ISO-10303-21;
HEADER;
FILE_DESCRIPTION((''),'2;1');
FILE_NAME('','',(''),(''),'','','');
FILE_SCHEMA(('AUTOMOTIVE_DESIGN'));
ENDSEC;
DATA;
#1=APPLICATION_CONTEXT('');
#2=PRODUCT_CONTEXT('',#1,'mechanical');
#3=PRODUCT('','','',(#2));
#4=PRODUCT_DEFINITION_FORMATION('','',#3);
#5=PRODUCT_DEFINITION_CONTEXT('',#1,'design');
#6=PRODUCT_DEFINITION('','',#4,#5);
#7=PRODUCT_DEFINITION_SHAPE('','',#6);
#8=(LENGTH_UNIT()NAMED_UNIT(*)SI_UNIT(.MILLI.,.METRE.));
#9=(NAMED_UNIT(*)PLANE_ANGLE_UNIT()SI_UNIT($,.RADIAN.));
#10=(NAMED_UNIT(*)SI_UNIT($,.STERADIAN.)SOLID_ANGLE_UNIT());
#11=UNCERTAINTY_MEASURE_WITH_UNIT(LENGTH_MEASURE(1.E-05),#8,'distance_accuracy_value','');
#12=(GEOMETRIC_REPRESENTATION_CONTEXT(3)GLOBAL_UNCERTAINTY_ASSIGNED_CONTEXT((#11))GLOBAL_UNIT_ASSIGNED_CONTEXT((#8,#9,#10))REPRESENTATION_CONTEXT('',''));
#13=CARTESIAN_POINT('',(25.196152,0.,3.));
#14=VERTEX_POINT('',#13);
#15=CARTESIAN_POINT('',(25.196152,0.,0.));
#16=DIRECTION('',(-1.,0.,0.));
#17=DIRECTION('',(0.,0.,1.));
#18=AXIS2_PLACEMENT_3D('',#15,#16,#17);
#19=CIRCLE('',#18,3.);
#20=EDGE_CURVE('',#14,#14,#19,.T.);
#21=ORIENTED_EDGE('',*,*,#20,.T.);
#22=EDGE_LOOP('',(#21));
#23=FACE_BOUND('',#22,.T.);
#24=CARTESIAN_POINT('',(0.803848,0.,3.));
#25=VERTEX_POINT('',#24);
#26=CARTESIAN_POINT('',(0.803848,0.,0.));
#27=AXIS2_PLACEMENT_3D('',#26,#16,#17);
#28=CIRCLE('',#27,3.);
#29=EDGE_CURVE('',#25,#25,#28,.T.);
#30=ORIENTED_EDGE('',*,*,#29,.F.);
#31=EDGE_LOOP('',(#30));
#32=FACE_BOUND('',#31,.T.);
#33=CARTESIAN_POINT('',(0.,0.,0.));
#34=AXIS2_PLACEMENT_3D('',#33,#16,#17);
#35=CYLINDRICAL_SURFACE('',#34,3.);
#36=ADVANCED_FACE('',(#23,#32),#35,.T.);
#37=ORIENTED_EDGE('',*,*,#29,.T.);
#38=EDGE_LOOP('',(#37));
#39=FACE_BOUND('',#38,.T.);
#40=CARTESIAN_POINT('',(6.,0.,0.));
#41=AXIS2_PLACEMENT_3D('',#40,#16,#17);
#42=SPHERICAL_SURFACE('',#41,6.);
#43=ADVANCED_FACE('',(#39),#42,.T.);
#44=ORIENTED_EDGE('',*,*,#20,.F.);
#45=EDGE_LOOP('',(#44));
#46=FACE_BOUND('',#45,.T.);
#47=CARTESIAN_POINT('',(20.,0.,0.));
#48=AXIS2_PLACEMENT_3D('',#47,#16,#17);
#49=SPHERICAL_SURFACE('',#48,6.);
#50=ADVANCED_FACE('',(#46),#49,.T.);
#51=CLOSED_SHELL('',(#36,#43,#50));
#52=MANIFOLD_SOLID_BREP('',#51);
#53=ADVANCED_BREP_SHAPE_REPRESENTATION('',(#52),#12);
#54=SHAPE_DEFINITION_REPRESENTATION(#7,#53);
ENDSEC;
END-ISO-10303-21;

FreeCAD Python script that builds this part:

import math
import FreeCAD as App
import Part
import Sketcher

V = App.Vector
Q = App.Units.Quantity

doc = App.newDocument("Part")
body = doc.addObject("PartDesign::Body", "Body")

sketch1 = body.newObject("Sketcher::SketchObject", "Sketch")
sketch1.AttachmentSupport = (doc.getObject("XY_Plane"), [""])
sketch1.MapMode = "FlatFace"
sketch1.addGeometry(Part.LineSegment(V(25.196152, 3, 0), V(0.803848, 3, 0)), False)
sketch1.addGeometry(Part.ArcOfCircle(Part.Circle(V(6, 0, 0), V(0, 0, 1), 6), math.radians(150), math.radians(180)), False)
sketch1.addGeometry(Part.LineSegment(V(0, 0, 0), V(26, 0, 0)), False)
sketch1.addGeometry(Part.ArcOfCircle(Part.Circle(V(20, 0, 0), V(0, 0, 1), 6), math.radians(0), math.radians(30)), False)
sketch1.addConstraint(Sketcher.Constraint("Coincident", 0, 2, 1, 1))
sketch1.addConstraint(Sketcher.Constraint("Coincident", 1, 2, 2, 1))
sketch1.addConstraint(Sketcher.Constraint("Coincident", 2, 2, 3, 1))
sketch1.addConstraint(Sketcher.Constraint("Coincident", 3, 2, 0, 1))
sketch1.addConstraint(Sketcher.Constraint("Horizontal", 0))
sketch1.addConstraint(Sketcher.Constraint("Horizontal", 2))
sketch1.addConstraint(Sketcher.Constraint("Coincident", 1, 2, -1, 1))
sketch1.addConstraint(Sketcher.Constraint("Equal", 1, 3))
sketch1.addConstraint(Sketcher.Constraint("PointOnObject", 1, 3, -1))
sketch1.addConstraint(Sketcher.Constraint("PointOnObject", 3, 3, -1))
sketch1.addConstraint(Sketcher.Constraint("Radius", 1, Q("6 mm")))
sketch1.addConstraint(Sketcher.Constraint("DistanceX", 2, 1, 2, 2, Q("26 mm")))
sketch1.addConstraint(Sketcher.Constraint("DistanceY", -1, 1, 0, 2, Q("3 mm")))
revolution = body.newObject("PartDesign::Revolution", "Revolution")
revolution.Profile = sketch1
revolution.ReferenceAxis = (sketch1, ["H_Axis"])
revolution.Angle = 360

doc.recompute()
